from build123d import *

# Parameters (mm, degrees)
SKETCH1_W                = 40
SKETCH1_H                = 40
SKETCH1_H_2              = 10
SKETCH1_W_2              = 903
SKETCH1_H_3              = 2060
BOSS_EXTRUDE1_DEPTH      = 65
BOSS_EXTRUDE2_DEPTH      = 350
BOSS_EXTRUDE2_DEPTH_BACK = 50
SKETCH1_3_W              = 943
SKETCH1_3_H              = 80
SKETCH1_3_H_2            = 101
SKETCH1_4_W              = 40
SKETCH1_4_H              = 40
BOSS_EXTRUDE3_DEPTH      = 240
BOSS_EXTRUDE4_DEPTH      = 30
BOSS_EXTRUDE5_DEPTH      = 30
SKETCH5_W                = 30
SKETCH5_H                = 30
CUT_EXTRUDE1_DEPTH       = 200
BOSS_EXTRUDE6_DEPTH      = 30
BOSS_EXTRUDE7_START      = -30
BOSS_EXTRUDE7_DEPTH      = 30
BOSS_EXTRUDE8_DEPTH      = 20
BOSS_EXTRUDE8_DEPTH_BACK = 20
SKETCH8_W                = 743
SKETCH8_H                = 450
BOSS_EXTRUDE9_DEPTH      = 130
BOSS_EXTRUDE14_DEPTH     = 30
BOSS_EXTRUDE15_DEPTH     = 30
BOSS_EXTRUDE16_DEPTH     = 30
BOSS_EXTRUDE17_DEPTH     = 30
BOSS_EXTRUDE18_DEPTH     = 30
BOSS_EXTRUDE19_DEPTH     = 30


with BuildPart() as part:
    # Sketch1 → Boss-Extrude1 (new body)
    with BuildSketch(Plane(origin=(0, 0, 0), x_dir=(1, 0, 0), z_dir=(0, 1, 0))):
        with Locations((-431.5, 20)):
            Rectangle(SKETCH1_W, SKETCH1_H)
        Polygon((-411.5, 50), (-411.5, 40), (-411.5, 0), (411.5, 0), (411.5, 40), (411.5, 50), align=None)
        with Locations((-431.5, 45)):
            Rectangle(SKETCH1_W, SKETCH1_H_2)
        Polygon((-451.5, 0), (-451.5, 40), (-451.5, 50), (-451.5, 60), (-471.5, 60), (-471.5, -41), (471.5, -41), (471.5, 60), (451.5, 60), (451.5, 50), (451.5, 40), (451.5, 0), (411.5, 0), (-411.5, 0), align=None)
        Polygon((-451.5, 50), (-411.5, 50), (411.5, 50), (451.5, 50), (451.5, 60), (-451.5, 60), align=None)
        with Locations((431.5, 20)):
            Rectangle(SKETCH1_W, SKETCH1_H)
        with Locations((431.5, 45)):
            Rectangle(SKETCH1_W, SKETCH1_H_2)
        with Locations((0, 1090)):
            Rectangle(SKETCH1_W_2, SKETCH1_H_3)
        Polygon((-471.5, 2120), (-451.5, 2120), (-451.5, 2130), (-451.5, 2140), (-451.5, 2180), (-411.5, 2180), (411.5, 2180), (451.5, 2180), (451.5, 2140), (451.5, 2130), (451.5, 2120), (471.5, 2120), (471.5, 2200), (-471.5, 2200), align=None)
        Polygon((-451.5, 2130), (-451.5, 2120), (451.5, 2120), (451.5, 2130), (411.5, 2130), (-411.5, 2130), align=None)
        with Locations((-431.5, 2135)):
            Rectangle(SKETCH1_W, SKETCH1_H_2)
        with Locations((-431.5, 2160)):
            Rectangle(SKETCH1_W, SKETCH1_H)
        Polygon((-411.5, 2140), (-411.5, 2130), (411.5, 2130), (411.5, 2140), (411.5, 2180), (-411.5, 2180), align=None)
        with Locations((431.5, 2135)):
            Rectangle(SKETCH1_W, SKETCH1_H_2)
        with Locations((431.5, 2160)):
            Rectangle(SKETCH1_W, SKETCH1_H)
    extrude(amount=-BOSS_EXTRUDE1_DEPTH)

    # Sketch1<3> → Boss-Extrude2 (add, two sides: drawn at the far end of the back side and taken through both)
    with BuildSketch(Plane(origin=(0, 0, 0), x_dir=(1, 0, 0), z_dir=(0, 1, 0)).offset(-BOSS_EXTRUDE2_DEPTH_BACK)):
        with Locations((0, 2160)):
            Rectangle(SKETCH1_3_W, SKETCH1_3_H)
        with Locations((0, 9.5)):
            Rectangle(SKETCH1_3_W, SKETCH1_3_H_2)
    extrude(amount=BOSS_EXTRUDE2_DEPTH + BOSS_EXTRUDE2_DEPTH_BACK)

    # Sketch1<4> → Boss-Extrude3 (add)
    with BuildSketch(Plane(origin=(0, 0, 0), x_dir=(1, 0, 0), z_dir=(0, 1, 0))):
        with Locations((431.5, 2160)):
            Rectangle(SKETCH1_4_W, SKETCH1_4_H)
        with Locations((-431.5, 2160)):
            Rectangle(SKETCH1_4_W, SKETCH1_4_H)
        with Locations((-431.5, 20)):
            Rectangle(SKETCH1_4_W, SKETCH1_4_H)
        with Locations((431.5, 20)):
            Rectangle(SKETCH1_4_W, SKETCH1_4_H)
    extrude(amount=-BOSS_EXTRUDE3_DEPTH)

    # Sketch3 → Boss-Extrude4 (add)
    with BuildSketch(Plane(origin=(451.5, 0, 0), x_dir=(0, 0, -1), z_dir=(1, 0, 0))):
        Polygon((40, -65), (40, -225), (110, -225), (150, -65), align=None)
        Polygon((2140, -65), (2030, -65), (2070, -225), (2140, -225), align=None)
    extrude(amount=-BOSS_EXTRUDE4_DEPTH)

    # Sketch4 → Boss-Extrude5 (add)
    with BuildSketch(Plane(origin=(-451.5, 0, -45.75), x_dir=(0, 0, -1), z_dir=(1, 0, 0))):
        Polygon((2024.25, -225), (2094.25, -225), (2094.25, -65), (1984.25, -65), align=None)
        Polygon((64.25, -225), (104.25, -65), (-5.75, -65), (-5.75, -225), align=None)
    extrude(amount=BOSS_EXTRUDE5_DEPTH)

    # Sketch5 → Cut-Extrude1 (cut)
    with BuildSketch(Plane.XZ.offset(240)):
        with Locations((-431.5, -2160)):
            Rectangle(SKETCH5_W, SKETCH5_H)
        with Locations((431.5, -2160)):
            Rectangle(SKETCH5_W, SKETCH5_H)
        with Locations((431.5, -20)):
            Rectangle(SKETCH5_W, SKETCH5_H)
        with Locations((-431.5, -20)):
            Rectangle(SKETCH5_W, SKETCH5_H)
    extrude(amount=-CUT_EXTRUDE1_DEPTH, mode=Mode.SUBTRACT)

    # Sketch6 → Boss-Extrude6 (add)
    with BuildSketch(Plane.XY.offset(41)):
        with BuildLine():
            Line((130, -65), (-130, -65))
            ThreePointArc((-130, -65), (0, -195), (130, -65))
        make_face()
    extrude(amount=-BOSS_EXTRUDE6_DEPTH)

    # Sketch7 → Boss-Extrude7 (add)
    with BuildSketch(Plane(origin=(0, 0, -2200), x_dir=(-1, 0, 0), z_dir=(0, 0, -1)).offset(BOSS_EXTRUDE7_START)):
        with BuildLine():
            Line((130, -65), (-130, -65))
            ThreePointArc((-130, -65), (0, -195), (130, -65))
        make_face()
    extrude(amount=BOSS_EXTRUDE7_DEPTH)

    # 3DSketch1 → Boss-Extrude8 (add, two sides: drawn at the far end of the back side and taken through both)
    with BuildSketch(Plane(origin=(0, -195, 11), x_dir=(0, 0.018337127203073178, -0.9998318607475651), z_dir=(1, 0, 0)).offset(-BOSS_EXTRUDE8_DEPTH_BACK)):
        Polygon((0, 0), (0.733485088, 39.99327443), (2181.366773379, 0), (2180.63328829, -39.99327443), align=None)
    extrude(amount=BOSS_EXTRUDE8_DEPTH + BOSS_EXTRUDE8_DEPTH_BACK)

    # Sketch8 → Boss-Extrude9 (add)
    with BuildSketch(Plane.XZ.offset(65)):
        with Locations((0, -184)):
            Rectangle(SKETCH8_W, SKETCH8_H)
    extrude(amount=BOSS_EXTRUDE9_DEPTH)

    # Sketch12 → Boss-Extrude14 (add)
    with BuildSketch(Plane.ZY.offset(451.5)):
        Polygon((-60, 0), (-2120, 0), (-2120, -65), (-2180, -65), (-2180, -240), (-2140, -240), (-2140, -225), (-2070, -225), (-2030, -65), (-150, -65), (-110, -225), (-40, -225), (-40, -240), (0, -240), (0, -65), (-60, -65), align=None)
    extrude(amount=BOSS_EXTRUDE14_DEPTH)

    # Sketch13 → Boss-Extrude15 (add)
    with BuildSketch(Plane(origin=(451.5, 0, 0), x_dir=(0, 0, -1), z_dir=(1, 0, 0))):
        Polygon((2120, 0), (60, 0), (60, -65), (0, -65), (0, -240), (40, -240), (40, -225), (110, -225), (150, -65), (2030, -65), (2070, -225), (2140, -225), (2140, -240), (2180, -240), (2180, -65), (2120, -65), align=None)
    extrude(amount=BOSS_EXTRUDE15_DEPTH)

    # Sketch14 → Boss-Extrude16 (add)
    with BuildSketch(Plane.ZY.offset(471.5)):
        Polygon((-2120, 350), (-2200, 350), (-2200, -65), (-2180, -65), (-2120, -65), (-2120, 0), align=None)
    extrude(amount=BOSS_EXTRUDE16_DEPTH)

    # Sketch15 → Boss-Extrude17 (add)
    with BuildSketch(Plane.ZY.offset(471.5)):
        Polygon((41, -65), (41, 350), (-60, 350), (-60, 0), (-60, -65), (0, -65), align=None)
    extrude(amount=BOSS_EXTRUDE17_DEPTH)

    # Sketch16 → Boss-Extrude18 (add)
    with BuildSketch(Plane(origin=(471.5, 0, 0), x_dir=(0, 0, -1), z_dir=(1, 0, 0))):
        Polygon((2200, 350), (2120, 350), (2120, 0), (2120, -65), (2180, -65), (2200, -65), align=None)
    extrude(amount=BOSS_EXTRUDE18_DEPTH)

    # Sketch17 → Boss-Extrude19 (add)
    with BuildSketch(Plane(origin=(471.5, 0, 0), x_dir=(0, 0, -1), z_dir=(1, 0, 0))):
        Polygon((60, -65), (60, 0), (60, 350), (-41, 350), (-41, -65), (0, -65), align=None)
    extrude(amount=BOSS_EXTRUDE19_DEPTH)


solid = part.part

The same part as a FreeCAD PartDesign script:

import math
import FreeCAD as App
import Part
import Sketcher


def add_polygon(sketch, points):
    """Adds a closed chain of lines whose ends are joined by coincident constraints."""
    first, n = sketch.GeometryCount, len(points)
    for a, b in zip(points, points[1:] + points[:1]):
        sketch.addGeometry(Part.LineSegment(App.Vector(*a, 0), App.Vector(*b, 0)), False)
    for i in range(n):
        sketch.addConstraint(Sketcher.Constraint("Coincident", first + i, 2, first + (i + 1) % n, 1))

doc = App.newDocument("Part")
body = doc.addObject("PartDesign::Body", "Body")

sketch1 = doc.addObject("Sketcher::SketchObject", "Sketch")
body.addObject(sketch1)
sketch1.AttachmentSupport = (doc.XZ_Plane, [""])
sketch1.MapMode = "FlatFace"
add_polygon(sketch1, [(-472, -60), (-472, 41), (472, 41), (472, -60), (452, -60), (452, -2120), (472, -2120), (472, -2200), (-472, -2200), (-472, -2120), (-452, -2120), (-452, -60)])
sketch1.addConstraint([
    Sketcher.Constraint("Vertical", 0),
    Sketcher.Constraint("Horizontal", 1),
    Sketcher.Constraint("Vertical", 2),
    Sketcher.Constraint("Horizontal", 3),
    Sketcher.Constraint("Vertical", 4),
    Sketcher.Constraint("Horizontal", 5),
    Sketcher.Constraint("Vertical", 6),
    Sketcher.Constraint("Horizontal", 7),
    Sketcher.Constraint("Vertical", 8),
    Sketcher.Constraint("Horizontal", 9),
    Sketcher.Constraint("Vertical", 10),
    Sketcher.Constraint("Horizontal", 11),
    Sketcher.Constraint("Symmetric", 5, 2, 8, 2, -2),
    Sketcher.Constraint("Symmetric", 3, 2, 10, 2, -2),
    Sketcher.Constraint("Vertical", 2, 2, 5, 2),
    Sketcher.Constraint("Vertical", 0, 2, 7, 2),
    Sketcher.Constraint("DistanceX", 1, 1, 1, 2, 943.0),
    Sketcher.Constraint("DistanceX", 3, 2, 3, 1, 20.0),
    Sketcher.Constraint("DistanceY", 0, 1, 0, 2, 101.0),
    Sketcher.Constraint("DistanceY", 4, 2, 4, 1, 2060.0),
    Sketcher.Constraint("DistanceY", 6, 2, 6, 1, 80.0),
    Sketcher.Constraint("DistanceY", -1, 1, 0, 2, 41.0),
])
pad1 = doc.addObject("PartDesign::Pad", "Pad")
body.addObject(pad1)
pad1.Profile = sketch1
pad1.Length = 65

sketch2 = doc.addObject("Sketcher::SketchObject", "Sketch001")
body.addObject(sketch2)
sketch2.AttachmentSupport = (doc.XZ_Plane, [""])
sketch2.MapMode = "FlatFace"
add_polygon(sketch2, [(-472, -2200), (-472, -2120), (472, -2120), (472, -2200)])
add_polygon(sketch2, [(-472, -60), (-472, 41), (472, 41), (472, -60)])
sketch2.addConstraint([
    Sketcher.Constraint("Vertical", 0),
    Sketcher.Constraint("Horizontal", 1),
    Sketcher.Constraint("Vertical", 2),
    Sketcher.Constraint("Horizontal", 3),
    Sketcher.Constraint("Vertical", 4),
    Sketcher.Constraint("Horizontal", 5),
    Sketcher.Constraint("Vertical", 6),
    Sketcher.Constraint("Horizontal", 7),
    Sketcher.Constraint("Vertical", 3, 2, 4, 2),
    Sketcher.Constraint("Vertical", 2, 2, 5, 2),
    Sketcher.Constraint("DistanceX", 1, 1, 1, 2, 943.0),
    Sketcher.Constraint("DistanceY", 0, 1, 0, 2, 80.0),
    Sketcher.Constraint("DistanceY", 4, 1, 4, 2, 101.0),
    Sketcher.Constraint("DistanceY", 0, 2, -1, 1, 2120.0),
    Sketcher.Constraint("DistanceY", -1, 1, 4, 2, 41.0),
    Sketcher.Constraint("DistanceX", 0, 2, -1, 1, 471.5),
])
pad2 = doc.addObject("PartDesign::Pad", "Pad001")
body.addObject(pad2)
pad2.Profile = sketch2
pad2.Type = "TwoLengths"
pad2.Length = 350
pad2.Length2 = 50
pad2.Reversed = True

sketch3 = doc.addObject("Sketcher::SketchObject", "Sketch002")
body.addObject(sketch3)
sketch3.AttachmentSupport = (doc.XZ_Plane, [""])
sketch3.MapMode = "FlatFace"
add_polygon(sketch3, [(412, -2180), (412, -2140), (452, -2140), (452, -2180)])
add_polygon(sketch3, [(-452, -2180), (-452, -2140), (-412, -2140), (-412, -2180)])
add_polygon(sketch3, [(-452, -40), (-452, 0), (-412, 0), (-412, -40)])
add_polygon(sketch3, [(412, -40), (412, 0), (452, 0), (452, -40)])
sketch3.addConstraint([
    Sketcher.Constraint("Vertical", 0),
    Sketcher.Constraint("Horizontal", 1),
    Sketcher.Constraint("Vertical", 2),
    Sketcher.Constraint("Horizontal", 3),
    Sketcher.Constraint("Vertical", 4),
    Sketcher.Constraint("Horizontal", 5),
    Sketcher.Constraint("Vertical", 6),
    Sketcher.Constraint("Horizontal", 7),
    Sketcher.Constraint("Vertical", 8),
    Sketcher.Constraint("Horizontal", 9),
    Sketcher.Constraint("Vertical", 10),
    Sketcher.Constraint("Horizontal", 11),
    Sketcher.Constraint("Vertical", 12),
    Sketcher.Constraint("Horizontal", 13),
    Sketcher.Constraint("Vertical", 14),
    Sketcher.Constraint("Horizontal", 15),
    Sketcher.Constraint("Symmetric", 9, 2, 12, 2, -1, 1),
    Sketcher.Constraint("Symmetric", 1, 2, 4, 2, -2),
    Sketcher.Constraint("Symmetric", 3, 2, 6, 2, -2),
    Sketcher.Constraint("Symmetric", 8, 2, 13, 2, -2),
    Sketcher.Constraint("Horizontal", 11, 2, 14, 2),
    Sketcher.Constraint("Vertical", 7, 2, 8, 2),
    Sketcher.Constraint("Vertical", 6, 2, 9, 2),
    Sketcher.Constraint("Equal", 15, 0),
    Sketcher.Constraint("Equal", 6, 8),
    Sketcher.Constraint("DistanceX", 1, 1, 1, 2, 40.0),
    Sketcher.Constraint("DistanceY", 0, 2, -1, 1, 2140.0),
    Sketcher.Constraint("DistanceX", 4, 2, 0, 2, 863.0),
])
pad3 = doc.addObject("PartDesign::Pad", "Pad002")
body.addObject(pad3)
pad3.Profile = sketch3
pad3.Length = 240

sketch4 = doc.addObject("Sketcher::SketchObject", "Sketch003")
body.addObject(sketch4)
sketch4.AttachmentSupport = (doc.YZ_Plane, [""])
sketch4.MapMode = "FlatFace"
sketch4.AttachmentOffset = App.Placement(App.Vector(0, 0, 451.5), App.Rotation())
add_polygon(sketch4, [(-65, -40), (-225, -40), (-225, -110), (-65, -150)])
add_polygon(sketch4, [(-65, -2140), (-65, -2030), (-225, -2070), (-225, -2140)])
sketch4.addConstraint([
    Sketcher.Constraint("Horizontal", 0),
    Sketcher.Constraint("Vertical", 1),
    Sketcher.Constraint("Vertical", 3),
    Sketcher.Constraint("Vertical", 4),
    Sketcher.Constraint("Vertical", 6),
    Sketcher.Constraint("Horizontal", 7),
    Sketcher.Constraint("Vertical", 3, 2, 4, 2),
    Sketcher.Constraint("Vertical", 1, 2, 5, 2),
    Sketcher.Constraint("Equal", 3, 4),
    Sketcher.Constraint("Equal", 1, 6),
    Sketcher.Constraint("DistanceX", 0, 2, 0, 1, 160.0),
    Sketcher.Constraint("DistanceY", 1, 2, 1, 1, 70.0),
    Sketcher.Constraint("DistanceY", 3, 1, 3, 2, 110.0),
    Sketcher.Constraint("DistanceX", 0, 2, -1, 1, 225.0),
    Sketcher.Constraint("DistanceY", 0, 2, -1, 1, 40.0),
    Sketcher.Constraint("DistanceY", 4, 2, -1, 1, 2030.0),
])
pad4 = doc.addObject("PartDesign::Pad", "Pad003")
body.addObject(pad4)
pad4.Profile = sketch4
pad4.Length = 30
pad4.Reversed = True

sketch5 = doc.addObject("Sketcher::SketchObject", "Sketch004")
body.addObject(sketch5)
sketch5.AttachmentSupport = (doc.YZ_Plane, [""])
sketch5.MapMode = "FlatFace"
sketch5.AttachmentOffset = App.Placement(App.Vector(0, 0, -451.5), App.Rotation())
add_polygon(sketch5, [(-225, -2070), (-225, -2140), (-65, -2140), (-65, -2030)])
add_polygon(sketch5, [(-225, -110), (-65, -150), (-65, -40), (-225, -40)])
sketch5.addConstraint([
    Sketcher.Constraint("Vertical", 0),
    Sketcher.Constraint("Horizontal", 1),
    Sketcher.Constraint("Vertical", 2),
    Sketcher.Constraint("Vertical", 5),
    Sketcher.Constraint("Horizontal", 6),
    Sketcher.Constraint("Vertical", 7),
    Sketcher.Constraint("Vertical", 2, 2, 4, 2),
    Sketcher.Constraint("Vertical", 3, 2, 6, 2),
    Sketcher.Constraint("Equal", 2, 5),
    Sketcher.Constraint("Equal", 0, 7),
    Sketcher.Constraint("DistanceX", 1, 1, 1, 2, 160.0),
    Sketcher.Constraint("DistanceY", 0, 2, 0, 1, 70.0),
    Sketcher.Constraint("DistanceY", 2, 1, 2, 2, 110.0),
    Sketcher.Constraint("DistanceX", 0, 2, -1, 1, 225.0),
    Sketcher.Constraint("DistanceY", 0, 2, -1, 1, 2140.0),
    Sketcher.Constraint("DistanceY", 4, 2, -1, 1, 150.0),
])
pad5 = doc.addObject("PartDesign::Pad", "Pad004")
body.addObject(pad5)
pad5.Profile = sketch5
pad5.Length = 30

sketch6 = doc.addObject("Sketcher::SketchObject", "Sketch005")
body.addObject(sketch6)
sketch6.AttachmentSupport = (doc.XZ_Plane, [""])
sketch6.MapMode = "FlatFace"
sketch6.AttachmentOffset = App.Placement(App.Vector(0, 0, 240), App.Rotation())
add_polygon(sketch6, [(-446, -2145), (-446, -2175), (-416, -2175), (-416, -2145)])
add_polygon(sketch6, [(416, -2145), (416, -2175), (446, -2175), (446, -2145)])
add_polygon(sketch6, [(416, -5), (416, -35), (446, -35), (446, -5)])
add_polygon(sketch6, [(-446, -5), (-446, -35), (-416, -35), (-416, -5)])
sketch6.addConstraint([
    Sketcher.Constraint("Vertical", 0),
    Sketcher.Constraint("Horizontal", 1),
    Sketcher.Constraint("Vertical", 2),
    Sketcher.Constraint("Horizontal", 3),
    Sketcher.Constraint("Vertical", 4),
    Sketcher.Constraint("Horizontal", 5),
    Sketcher.Constraint("Vertical", 6),
    Sketcher.Constraint("Horizontal", 7),
    Sketcher.Constraint("Vertical", 8),
    Sketcher.Constraint("Horizontal", 9),
    Sketcher.Constraint("Vertical", 10),
    Sketcher.Constraint("Horizontal", 11),
    Sketcher.Constraint("Vertical", 12),
    Sketcher.Constraint("Horizontal", 13),
    Sketcher.Constraint("Vertical", 14),
    Sketcher.Constraint("Horizontal", 15),
    Sketcher.Constraint("Symmetric", 1, 2, 4, 2, -2),
    Sketcher.Constraint("Symmetric", 3, 2, 6, 2, -2),
    Sketcher.Constraint("Symmetric", 9, 2, 12, 2, -2),
    Sketcher.Constraint("Symmetric", 11, 2, 14, 2, -2),
    Sketcher.Constraint("Vertical", 7, 2, 8, 2),
    Sketcher.Constraint("Vertical", 6, 2, 9, 2),
    Sketcher.Constraint("Equal", 15, 0),
    Sketcher.Constraint("Equal", 6, 8),
    Sketcher.Constraint("DistanceX", 1, 1, 1, 2, 30.0),
    Sketcher.Constraint("DistanceY", 0, 2, -1, 1, 2175.0),
    Sketcher.Constraint("DistanceY", 8, 2, -1, 1, 35.0),
    Sketcher.Constraint("DistanceX", 1, 2, 4, 2, 833.0),
])
pocket1 = doc.addObject("PartDesign::Pocket", "Pocket")
body.addObject(pocket1)
pocket1.Profile = sketch6
pocket1.Length = 200

sketch7 = doc.addObject("Sketcher::SketchObject", "Sketch006")
body.addObject(sketch7)
sketch7.AttachmentSupport = (doc.XY_Plane, [""])
sketch7.MapMode = "FlatFace"
sketch7.AttachmentOffset = App.Placement(App.Vector(0, 0, 41), App.Rotation())
sketch7.addGeometry([
    Part.LineSegment(App.Vector(130, -65, 0), App.Vector(-130, -65, 0)),
    Part.ArcOfCircle(Part.Circle(App.Vector(0, -65, 0), App.Vector(0, 0, 1), 130), math.radians(180), math.radians(360)),
], False)
sketch7.addConstraint([
    Sketcher.Constraint("Coincident", 0, 1, 1, 2),
    Sketcher.Constraint("Coincident", 1, 1, 0, 2),
    Sketcher.Constraint("Horizontal", 0),
    Sketcher.Constraint("PointOnObject", 1, 3, -2),
    Sketcher.Constraint("Horizontal", 1, 3, 0, 1),
    Sketcher.Constraint("Radius", 1, 130.0),
    Sketcher.Constraint("DistanceY", 1, 3, -1, 1, 65.0),
])
pad6 = doc.addObject("PartDesign::Pad", "Pad005")
body.addObject(pad6)
pad6.Profile = sketch7
pad6.Length = 30
pad6.Reversed = True

sketch8 = doc.addObject("Sketcher::SketchObject", "Sketch007")
body.addObject(sketch8)
sketch8.AttachmentSupport = (doc.XY_Plane, [""])
sketch8.MapMode = "FlatFace"
sketch8.AttachmentOffset = App.Placement(App.Vector(0, 0, -2170), App.Rotation())
sketch8.addGeometry([
    Part.LineSegment(App.Vector(-130, -65, 0), App.Vector(130, -65, 0)),
    Part.ArcOfCircle(Part.Circle(App.Vector(0, -65, 0), App.Vector(0, 0, 1), 130), math.radians(180), math.radians(360)),
], False)
sketch8.addConstraint([
    Sketcher.Constraint("Coincident", 0, 1, 1, 1),
    Sketcher.Constraint("Coincident", 1, 2, 0, 2),
    Sketcher.Constraint("Horizontal", 0),
    Sketcher.Constraint("PointOnObject", 1, 3, -2),
    Sketcher.Constraint("Horizontal", 1, 3, 0, 1),
    Sketcher.Constraint("Radius", 1, 130.0),
    Sketcher.Constraint("DistanceY", 1, 3, -1, 1, 65.0),
])
pad7 = doc.addObject("PartDesign::Pad", "Pad006")
body.addObject(pad7)
pad7.Profile = sketch8
pad7.Length = 30
pad7.Reversed = True

sketch9 = doc.addObject("Sketcher::SketchObject", "Sketch008")
body.addObject(sketch9)
sketch9.AttachmentSupport = (doc.YZ_Plane, [""])
sketch9.MapMode = "FlatFace"
add_polygon(sketch9, [(-155, 11), (-195, 11), (-195, -2170), (-155, -2170)])
sketch9.addConstraint([
    Sketcher.Constraint("Horizontal", 0),
    Sketcher.Constraint("Vertical", 1),
    Sketcher.Constraint("Horizontal", 2),
    Sketcher.Constraint("Vertical", 3),
    Sketcher.Constraint("DistanceX", 0, 2, 0, 1, 40.0),
    Sketcher.Constraint("DistanceY", 1, 2, 1, 1, 2181.000001),
    Sketcher.Constraint("DistanceX", 0, 2, -1, 1, 195.0),
    Sketcher.Constraint("DistanceY", -1, 1, 0, 2, 11.0),
])
pad8 = doc.addObject("PartDesign::Pad", "Pad007")
body.addObject(pad8)
pad8.Profile = sketch9
pad8.Type = "TwoLengths"
pad8.Length = 20
pad8.Length2 = 20

sketch10 = doc.addObject("Sketcher::SketchObject", "Sketch009")
body.addObject(sketch10)
sketch10.AttachmentSupport = (doc.XZ_Plane, [""])
sketch10.MapMode = "FlatFace"
sketch10.AttachmentOffset = App.Placement(App.Vector(0, 0, 65), App.Rotation())
add_polygon(sketch10, [(-372, 41), (-372, -409), (372, -409), (372, 41)])
sketch10.addConstraint([
    Sketcher.Constraint("Vertical", 0),
    Sketcher.Constraint("Horizontal", 1),
    Sketcher.Constraint("Vertical", 2),
    Sketcher.Constraint("Horizontal", 3),
    Sketcher.Constraint("DistanceX", 1, 1, 1, 2, 743.0),
    Sketcher.Constraint("DistanceY", 0, 2, 0, 1, 450.0),
    Sketcher.Constraint("DistanceY", 0, 2, -1, 1, 409.0),
    Sketcher.Constraint("DistanceX", 0, 2, -1, 1, 371.5),
])
pad9 = doc.addObject("PartDesign::Pad", "Pad008")
body.addObject(pad9)
pad9.Profile = sketch10
pad9.Length = 130

sketch11 = doc.addObject("Sketcher::SketchObject", "Sketch010")
body.addObject(sketch11)
sketch11.AttachmentSupport = (doc.YZ_Plane, [""])
sketch11.MapMode = "FlatFace"
sketch11.AttachmentOffset = App.Placement(App.Vector(0, 0, -451.5), App.Rotation())
add_polygon(sketch11, [(0, -60), (0, -2120), (-65, -2120), (-65, -2180), (-240, -2180), (-240, -2140), (-225, -2140), (-225, -2070), (-65, -2030), (-65, -150), (-225, -110), (-225, -40), (-240, -40), (-240, 0), (-65, 0), (-65, -60)])
sketch11.addConstraint([
    Sketcher.Constraint("Vertical", 0),
    Sketcher.Constraint("Horizontal", 1),
    Sketcher.Constraint("Vertical", 2),
    Sketcher.Constraint("Horizontal", 3),
    Sketcher.Constraint("Vertical", 4),
    Sketcher.Constraint("Horizontal", 5),
    Sketcher.Constraint("Vertical", 6),
    Sketcher.Constraint("Vertical", 8),
    Sketcher.Constraint("Vertical", 10),
    Sketcher.Constraint("Horizontal", 11),
    Sketcher.Constraint("Vertical", 12),
    Sketcher.Constraint("Horizontal", 13),
    Sketcher.Constraint("Vertical", 14),
    Sketcher.Constraint("Horizontal", 15),
    Sketcher.Constraint("PointOnObject", 0, 2, -2),
    Sketcher.Constraint("PointOnObject", 12, 2, -1),
    Sketcher.Constraint("Vertical", 2, 2, 7, 2),
    Sketcher.Constraint("Vertical", 6, 2, 9, 2),
    Sketcher.Constraint("Vertical", 4, 2, 11, 2),
    Sketcher.Constraint("Vertical", 8, 2, 13, 2),
    Sketcher.Constraint("Equal", 6, 10),
    Sketcher.Constraint("Equal", 4, 12),
    Sketcher.Constraint("Equal", 2, 14),
    Sketcher.Constraint("Equal", 7, 9),
    Sketcher.Constraint("DistanceX", 1, 2, 1, 1, 65.0),
    Sketcher.Constraint("DistanceX", 3, 2, 3, 1, 175.0),
    Sketcher.Constraint("DistanceX", 5, 1, 5, 2, 15.0),
    Sketcher.Constraint("DistanceY", 0, 2, 0, 1, 2060.0),
    Sketcher.Constraint("DistanceY", 2, 2, 2, 1, 60.0),
    Sketcher.Constraint("DistanceY", 4, 1, 4, 2, 40.0),
    Sketcher.Constraint("DistanceY", 6, 1, 6, 2, 70.0),
    Sketcher.Constraint("DistanceY", 8, 1, 8, 2, 1880.0),
])
pad10 = doc.addObject("PartDesign::Pad", "Pad009")
body.addObject(pad10)
pad10.Profile = sketch11
pad10.Length = 30
pad10.Reversed = True

sketch12 = doc.addObject("Sketcher::SketchObject", "Sketch011")
body.addObject(sketch12)
sketch12.AttachmentSupport = (doc.YZ_Plane, [""])
sketch12.MapMode = "FlatFace"
sketch12.AttachmentOffset = App.Placement(App.Vector(0, 0, 451.5), App.Rotation())
add_polygon(sketch12, [(0, -2120), (0, -60), (-65, -60), (-65, 0), (-240, 0), (-240, -40), (-225, -40), (-225, -110), (-65, -150), (-65, -2030), (-225, -2070), (-225, -2140), (-240, -2140), (-240, -2180), (-65, -2180), (-65, -2120)])
sketch12.addConstraint([
    Sketcher.Constraint("Vertical", 0),
    Sketcher.Constraint("Horizontal", 1),
    Sketcher.Constraint("Vertical", 2),
    Sketcher.Constraint("Horizontal", 3),
    Sketcher.Constraint("Vertical", 4),
    Sketcher.Constraint("Horizontal", 5),
    Sketcher.Constraint("Vertical", 6),
    Sketcher.Constraint("Vertical", 8),
    Sketcher.Constraint("Vertical", 10),
    Sketcher.Constraint("Horizontal", 11),
    Sketcher.Constraint("Vertical", 12),
    Sketcher.Constraint("Horizontal", 13),
    Sketcher.Constraint("Vertical", 14),
    Sketcher.Constraint("Horizontal", 15),
    Sketcher.Constraint("PointOnObject", 0, 2, -2),
    Sketcher.Constraint("PointOnObject", 2, 2, -1),
    Sketcher.Constraint("Vertical", 2, 2, 7, 2),
    Sketcher.Constraint("Vertical", 6, 2, 9, 2),
    Sketcher.Constraint("Vertical", 4, 2, 11, 2),
    Sketcher.Constraint("Vertical", 8, 2, 13, 2),
    Sketcher.Constraint("Equal", 6, 10),
    Sketcher.Constraint("Equal", 4, 12),
    Sketcher.Constraint("Equal", 2, 14),
    Sketcher.Constraint("Equal", 7, 9),
    Sketcher.Constraint("DistanceX", 1, 2, 1, 1, 65.0),
    Sketcher.Constraint("DistanceX", 3, 2, 3, 1, 175.0),
    Sketcher.Constraint("DistanceX", 5, 1, 5, 2, 15.0),
    Sketcher.Constraint("DistanceY", 0, 1, 0, 2, 2060.0),
    Sketcher.Constraint("DistanceY", 2, 1, 2, 2, 60.0),
    Sketcher.Constraint("DistanceY", 4, 2, 4, 1, 40.0),
    Sketcher.Constraint("DistanceY", 6, 2, 6, 1, 70.0),
    Sketcher.Constraint("DistanceY", 8, 2, 8, 1, 1880.0),
])
pad11 = doc.addObject("PartDesign::Pad", "Pad010")
body.addObject(pad11)
pad11.Profile = sketch12
pad11.Length = 30

sketch13 = doc.addObject("Sketcher::SketchObject", "Sketch012")
body.addObject(sketch13)
sketch13.AttachmentSupport = (doc.YZ_Plane, [""])
sketch13.MapMode = "FlatFace"
sketch13.AttachmentOffset = App.Placement(App.Vector(0, 0, -471.5), App.Rotation())
add_polygon(sketch13, [(350, -2120), (350, -2200), (-65, -2200), (-65, -2120)])
sketch13.addConstraint([
    Sketcher.Constraint("Vertical", 0),
    Sketcher.Constraint("Horizontal", 1),
    Sketcher.Constraint("Vertical", 2),
    Sketcher.Constraint("Horizontal", 3),
    Sketcher.Constraint("DistanceX", 1, 2, 1, 1, 415.0),
    Sketcher.Constraint("DistanceY", 0, 2, 0, 1, 80.0),
    Sketcher.Constraint("DistanceX", -1, 1, 0, 2, 350.0),
    Sketcher.Constraint("DistanceY", 0, 2, -1, 1, 2200.0),
])
pad12 = doc.addObject("PartDesign::Pad", "Pad011")
body.addObject(pad12)
pad12.Profile = sketch13
pad12.Length = 30
pad12.Reversed = True

sketch14 = doc.addObject("Sketcher::SketchObject", "Sketch013")
body.addObject(sketch14)
sketch14.AttachmentSupport = (doc.YZ_Plane, [""])
sketch14.MapMode = "FlatFace"
sketch14.AttachmentOffset = App.Placement(App.Vector(0, 0, -471.5), App.Rotation())
add_polygon(sketch14, [(-65, 41), (350, 41), (350, -60), (-65, -60)])
sketch14.addConstraint([
    Sketcher.Constraint("Horizontal", 0),
    Sketcher.Constraint("Vertical", 1),
    Sketcher.Constraint("Horizontal", 2),
    Sketcher.Constraint("Vertical", 3),
    Sketcher.Constraint("DistanceX", 0, 1, 0, 2, 415.0),
    Sketcher.Constraint("DistanceY", 1, 2, 1, 1, 101.0),
    Sketcher.Constraint("DistanceX", -1, 1, 0, 2, 350.0),
    Sketcher.Constraint("DistanceY", -1, 1, 0, 2, 41.0),
])
pad13 = doc.addObject("PartDesign::Pad", "Pad012")
body.addObject(pad13)
pad13.Profile = sketch14
pad13.Length = 30
pad13.Reversed = True

sketch15 = doc.addObject("Sketcher::SketchObject", "Sketch014")
body.addObject(sketch15)
sketch15.AttachmentSupport = (doc.YZ_Plane, [""])
sketch15.MapMode = "FlatFace"
sketch15.AttachmentOffset = App.Placement(App.Vector(0, 0, 471.5), App.Rotation())
add_polygon(sketch15, [(350, -2200), (350, -2120), (-65, -2120), (-65, -2200)])
sketch15.addConstraint([
    Sketcher.Constraint("Vertical", 0),
    Sketcher.Constraint("Horizontal", 1),
    Sketcher.Constraint("Vertical", 2),
    Sketcher.Constraint("Horizontal", 3),
    Sketcher.Constraint("DistanceX", 1, 2, 1, 1, 415.0),
    Sketcher.Constraint("DistanceY", 0, 1, 0, 2, 80.0),
    Sketcher.Constraint("DistanceX", -1, 1, 0, 2, 350.0),
    Sketcher.Constraint("DistanceY", 0, 2, -1, 1, 2120.0),
])
pad14 = doc.addObject("PartDesign::Pad", "Pad013")
body.addObject(pad14)
pad14.Profile = sketch15
pad14.Length = 30

sketch16 = doc.addObject("Sketcher::SketchObject", "Sketch015")
body.addObject(sketch16)
sketch16.AttachmentSupport = (doc.YZ_Plane, [""])
sketch16.MapMode = "FlatFace"
sketch16.AttachmentOffset = App.Placement(App.Vector(0, 0, 471.5), App.Rotation())
add_polygon(sketch16, [(-65, -60), (350, -60), (350, 41), (-65, 41)])
sketch16.addConstraint([
    Sketcher.Constraint("Horizontal", 0),
    Sketcher.Constraint("Vertical", 1),
    Sketcher.Constraint("Horizontal", 2),
    Sketcher.Constraint("Vertical", 3),
    Sketcher.Constraint("DistanceX", 0, 1, 0, 2, 415.0),
    Sketcher.Constraint("DistanceY", 1, 1, 1, 2, 101.0),
    Sketcher.Constraint("DistanceX", -1, 1, 0, 2, 350.0),
    Sketcher.Constraint("DistanceY", 0, 2, -1, 1, 60.0),
])
pad15 = doc.addObject("PartDesign::Pad", "Pad014")
body.addObject(pad15)
pad15.Profile = sketch16
pad15.Length = 30

doc.recompute()
